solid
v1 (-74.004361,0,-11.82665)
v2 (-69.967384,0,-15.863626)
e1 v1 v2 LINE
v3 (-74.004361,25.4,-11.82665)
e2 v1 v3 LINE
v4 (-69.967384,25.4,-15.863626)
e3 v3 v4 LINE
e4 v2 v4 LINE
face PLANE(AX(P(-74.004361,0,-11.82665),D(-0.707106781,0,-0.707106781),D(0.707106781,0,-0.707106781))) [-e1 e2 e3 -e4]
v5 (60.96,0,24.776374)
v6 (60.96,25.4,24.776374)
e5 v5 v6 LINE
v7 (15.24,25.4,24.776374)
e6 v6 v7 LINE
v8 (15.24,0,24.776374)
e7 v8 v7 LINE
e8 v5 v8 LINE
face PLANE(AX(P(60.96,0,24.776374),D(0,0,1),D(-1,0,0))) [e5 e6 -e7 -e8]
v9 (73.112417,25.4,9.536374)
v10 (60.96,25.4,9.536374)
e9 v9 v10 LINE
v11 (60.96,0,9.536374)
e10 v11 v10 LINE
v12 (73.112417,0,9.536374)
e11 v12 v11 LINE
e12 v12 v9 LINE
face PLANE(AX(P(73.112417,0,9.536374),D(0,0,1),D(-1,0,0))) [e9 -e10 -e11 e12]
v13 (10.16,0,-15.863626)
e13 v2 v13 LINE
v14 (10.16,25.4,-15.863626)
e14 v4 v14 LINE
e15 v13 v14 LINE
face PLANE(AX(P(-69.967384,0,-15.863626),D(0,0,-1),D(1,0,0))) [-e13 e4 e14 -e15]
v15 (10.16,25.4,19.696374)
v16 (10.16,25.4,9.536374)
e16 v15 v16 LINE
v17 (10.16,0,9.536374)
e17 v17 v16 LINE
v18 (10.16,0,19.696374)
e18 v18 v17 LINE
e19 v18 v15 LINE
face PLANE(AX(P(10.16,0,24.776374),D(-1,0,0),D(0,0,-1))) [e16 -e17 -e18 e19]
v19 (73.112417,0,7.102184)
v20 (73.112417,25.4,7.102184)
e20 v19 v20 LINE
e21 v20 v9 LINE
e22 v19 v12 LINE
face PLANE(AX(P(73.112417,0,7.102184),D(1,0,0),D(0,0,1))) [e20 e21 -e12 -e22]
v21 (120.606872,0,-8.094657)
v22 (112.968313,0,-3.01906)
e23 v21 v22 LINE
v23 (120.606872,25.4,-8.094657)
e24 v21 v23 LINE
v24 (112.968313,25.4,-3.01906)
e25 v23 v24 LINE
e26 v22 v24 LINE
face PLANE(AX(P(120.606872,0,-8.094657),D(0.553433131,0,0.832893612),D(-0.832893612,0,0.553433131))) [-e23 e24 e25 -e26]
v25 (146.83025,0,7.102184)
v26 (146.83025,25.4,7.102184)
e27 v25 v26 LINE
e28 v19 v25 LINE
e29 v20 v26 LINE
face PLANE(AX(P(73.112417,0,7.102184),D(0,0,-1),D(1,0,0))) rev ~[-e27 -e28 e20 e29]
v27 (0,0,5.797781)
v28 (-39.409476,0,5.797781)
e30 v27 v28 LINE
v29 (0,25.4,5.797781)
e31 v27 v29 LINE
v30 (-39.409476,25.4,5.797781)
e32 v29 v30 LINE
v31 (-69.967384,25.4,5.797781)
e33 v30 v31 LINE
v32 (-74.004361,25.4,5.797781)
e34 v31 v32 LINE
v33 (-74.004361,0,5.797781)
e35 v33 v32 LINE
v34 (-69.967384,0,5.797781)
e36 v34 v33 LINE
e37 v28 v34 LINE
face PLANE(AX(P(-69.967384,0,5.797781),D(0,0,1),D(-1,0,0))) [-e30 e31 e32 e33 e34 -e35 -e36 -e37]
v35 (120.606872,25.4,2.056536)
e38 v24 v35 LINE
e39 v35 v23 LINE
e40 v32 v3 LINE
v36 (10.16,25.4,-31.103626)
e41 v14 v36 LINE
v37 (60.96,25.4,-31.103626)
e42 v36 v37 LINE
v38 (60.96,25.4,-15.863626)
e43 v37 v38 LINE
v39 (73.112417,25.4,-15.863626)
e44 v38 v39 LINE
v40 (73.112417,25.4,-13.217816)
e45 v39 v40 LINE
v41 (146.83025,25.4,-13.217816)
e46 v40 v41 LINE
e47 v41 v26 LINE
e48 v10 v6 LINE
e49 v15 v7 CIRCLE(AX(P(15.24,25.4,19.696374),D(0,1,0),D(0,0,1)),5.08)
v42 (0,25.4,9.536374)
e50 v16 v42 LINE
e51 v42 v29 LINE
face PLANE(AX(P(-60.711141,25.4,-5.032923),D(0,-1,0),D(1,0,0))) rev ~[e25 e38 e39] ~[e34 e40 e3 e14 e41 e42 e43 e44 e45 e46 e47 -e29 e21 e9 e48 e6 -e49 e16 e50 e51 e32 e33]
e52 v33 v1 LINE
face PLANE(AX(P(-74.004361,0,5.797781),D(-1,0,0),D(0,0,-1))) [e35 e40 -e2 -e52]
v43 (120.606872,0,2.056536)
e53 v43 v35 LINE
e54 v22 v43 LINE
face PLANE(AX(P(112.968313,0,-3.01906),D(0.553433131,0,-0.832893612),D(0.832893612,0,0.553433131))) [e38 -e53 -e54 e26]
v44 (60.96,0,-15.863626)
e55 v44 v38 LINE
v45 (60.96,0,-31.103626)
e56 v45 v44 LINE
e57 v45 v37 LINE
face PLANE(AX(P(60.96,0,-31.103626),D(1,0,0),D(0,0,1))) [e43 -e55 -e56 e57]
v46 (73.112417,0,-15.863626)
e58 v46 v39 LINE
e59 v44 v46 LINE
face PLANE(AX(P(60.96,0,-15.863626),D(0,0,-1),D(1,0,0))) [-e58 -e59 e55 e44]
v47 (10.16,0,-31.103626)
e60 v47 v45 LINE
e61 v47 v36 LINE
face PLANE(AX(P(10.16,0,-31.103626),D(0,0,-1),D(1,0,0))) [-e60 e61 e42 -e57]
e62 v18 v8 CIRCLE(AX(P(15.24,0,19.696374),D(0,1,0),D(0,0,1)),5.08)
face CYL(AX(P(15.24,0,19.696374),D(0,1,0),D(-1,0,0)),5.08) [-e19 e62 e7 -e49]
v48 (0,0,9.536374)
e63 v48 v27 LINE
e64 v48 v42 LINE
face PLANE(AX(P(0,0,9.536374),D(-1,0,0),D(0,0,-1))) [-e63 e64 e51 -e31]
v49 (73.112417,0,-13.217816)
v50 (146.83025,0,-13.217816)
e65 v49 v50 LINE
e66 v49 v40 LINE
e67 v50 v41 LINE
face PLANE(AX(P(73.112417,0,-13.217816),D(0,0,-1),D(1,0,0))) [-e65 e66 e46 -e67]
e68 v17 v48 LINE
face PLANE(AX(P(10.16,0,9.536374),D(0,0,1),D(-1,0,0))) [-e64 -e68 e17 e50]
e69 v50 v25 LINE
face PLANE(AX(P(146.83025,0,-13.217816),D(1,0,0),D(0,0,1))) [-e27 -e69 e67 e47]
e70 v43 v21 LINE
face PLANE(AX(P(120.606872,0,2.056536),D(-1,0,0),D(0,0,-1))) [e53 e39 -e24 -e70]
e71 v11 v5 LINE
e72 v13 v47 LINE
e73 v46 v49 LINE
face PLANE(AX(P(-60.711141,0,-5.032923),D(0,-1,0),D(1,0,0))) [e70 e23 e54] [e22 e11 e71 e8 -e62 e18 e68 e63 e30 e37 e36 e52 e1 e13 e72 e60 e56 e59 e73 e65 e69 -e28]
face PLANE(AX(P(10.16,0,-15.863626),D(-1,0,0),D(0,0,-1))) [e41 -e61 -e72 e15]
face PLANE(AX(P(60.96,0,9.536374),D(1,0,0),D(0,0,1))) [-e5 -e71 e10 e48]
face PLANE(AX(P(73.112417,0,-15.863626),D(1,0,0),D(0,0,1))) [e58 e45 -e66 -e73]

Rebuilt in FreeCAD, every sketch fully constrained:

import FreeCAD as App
import Part
import Sketcher
Q = App.Units.Quantity


def edges_at(feature, points):
    """Names of the edges that pass closest to the given points."""
    edges = feature.Shape.Edges
    near = lambda p: min(range(len(edges)), key=lambda i: edges[i].distToShape(Part.Vertex(*p))[0])
    return sorted({f"Edge{near(p) + 1}" for p in points})


def add_polygon(sketch, points):
    """Adds a closed chain of lines whose ends are joined by coincident constraints."""
    first, n = sketch.GeometryCount, len(points)
    for a, b in zip(points, points[1:] + points[:1]):
        sketch.addGeometry(Part.LineSegment(App.Vector(*a, 0), App.Vector(*b, 0)), False)
    for i in range(n):
        sketch.addConstraint(Sketcher.Constraint("Coincident", first + i, 2, first + (i + 1) % n, 1))

doc = App.newDocument("Part")
body = doc.addObject("PartDesign::Body", "Body")

sketch1 = body.newObject("Sketcher::SketchObject", "Sketch")
sketch1.AttachmentSupport = (doc.getObject("XZ_Plane"), [""])
sketch1.MapMode = "FlatFace"
add_polygon(sketch1, [(-70, -15.9), (10.2, -15.9), (10.2, -31.1), (61, -31.1), (61, -15.9), (73.1, -15.9), (73.1, -13.2), (146.8, -13.2), (146.8, 7.1), (73.1, 7.1), (73.1, 9.5), (61, 9.5), (61, 24.8), (10.2, 24.8), (10.2, 9.5), (0, 9.5), (0, 5.8), (-39.4, 5.8), (-70, 5.8), (-74, 5.8), (-74, -11.8)])
add_polygon(sketch1, [(120.6, -8.1), (113, -3), (120.6, 2.1)])
sketch1.addConstraint([
    Sketcher.Constraint("Horizontal", 0),
    Sketcher.Constraint("Vertical", 1),
    Sketcher.Constraint("Horizontal", 2),
    Sketcher.Constraint("Vertical", 3),
    Sketcher.Constraint("Horizontal", 4),
    Sketcher.Constraint("Vertical", 5),
    Sketcher.Constraint("Horizontal", 6),
    Sketcher.Constraint("Vertical", 7),
    Sketcher.Constraint("Horizontal", 8),
    Sketcher.Constraint("Vertical", 9),
    Sketcher.Constraint("Horizontal", 10),
    Sketcher.Constraint("Vertical", 11),
    Sketcher.Constraint("Horizontal", 12),
    Sketcher.Constraint("Vertical", 13),
    Sketcher.Constraint("Horizontal", 14),
    Sketcher.Constraint("Vertical", 15),
    Sketcher.Constraint("Horizontal", 16),
    Sketcher.Constraint("Horizontal", 17),
    Sketcher.Constraint("Horizontal", 18),
    Sketcher.Constraint("Vertical", 19),
    Sketcher.Constraint("Vertical", 23),
    Sketcher.Constraint("PointOnObject", 14, 2, -2),
    Sketcher.Constraint("Horizontal", 0, 2, 3, 2),
    Sketcher.Constraint("Horizontal", 10, 2, 13, 2),
    Sketcher.Constraint("Vertical", 5, 2, 8, 2),
    Sketcher.Constraint("Vertical", 3, 2, 10, 2),
    Sketcher.Constraint("Vertical", 1, 2, 12, 2),
    Sketcher.Constraint("Vertical", 17, 2, 20, 2),
    Sketcher.Constraint("Equal", 3, 11),
    Sketcher.Constraint("Equal", 21, 22),
    Sketcher.Constraint("DistanceX", 2, 1, 2, 2, Q("2 in")),
    Sketcher.Constraint("DistanceX", 14, 2, 14, 1, Q("0.4 in")),
    Sketcher.Constraint("DistanceY", 1, 2, 1, 1, Q("0.6 in")),
    Sketcher.Constraint("DistanceY", 7, 1, 7, 2, Q("0.8 in")),
    Sketcher.Constraint("Angle", 20, Q("-45 deg")),
    Sketcher.Constraint("DistanceY", 4, 2, 9, 2, Q("1 in")),
    Sketcher.Constraint("DistanceX", 17, 2, 17, 1, 30.557908),
    Sketcher.Constraint("DistanceY", 5, 1, 5, 2, 2.64581),
    Sketcher.Constraint("DistanceY", 19, 2, 19, 1, 17.62443),
    Sketcher.Constraint("Distance", 21, 9.17111),
    Sketcher.Constraint("DistanceX", 0, 1, 0, 2, 80.127384),
    Sketcher.Constraint("DistanceX", 4, 1, 4, 2, 12.152417),
    Sketcher.Constraint("DistanceX", 6, 1, 6, 2, 73.717833),
    Sketcher.Constraint("DistanceX", 18, 2, 18, 1, 4.036977),
    Sketcher.Constraint("DistanceY", 23, 2, 23, 1, 10.151192),
    Sketcher.Constraint("DistanceY", -1, 1, 15, 2, 5.797781),
    Sketcher.Constraint("DistanceY", 21, 2, -1, 1, 3.01906),
    Sketcher.Constraint("DistanceX", -1, 1, 21, 2, 112.968313),
])
pad1 = body.newObject("PartDesign::Pad", "Pad")
pad1.Profile = sketch1
pad1.Length = Q("1 in")
pad1.Reversed = True
doc.recompute()

fillet = body.newObject("PartDesign::Fillet", "Fillet")
fillet.Base = (pad1, edges_at(pad1, [(10.16, 12.7, 24.776)]))
fillet.Radius = Q("0.2 in")

doc.recompute()
